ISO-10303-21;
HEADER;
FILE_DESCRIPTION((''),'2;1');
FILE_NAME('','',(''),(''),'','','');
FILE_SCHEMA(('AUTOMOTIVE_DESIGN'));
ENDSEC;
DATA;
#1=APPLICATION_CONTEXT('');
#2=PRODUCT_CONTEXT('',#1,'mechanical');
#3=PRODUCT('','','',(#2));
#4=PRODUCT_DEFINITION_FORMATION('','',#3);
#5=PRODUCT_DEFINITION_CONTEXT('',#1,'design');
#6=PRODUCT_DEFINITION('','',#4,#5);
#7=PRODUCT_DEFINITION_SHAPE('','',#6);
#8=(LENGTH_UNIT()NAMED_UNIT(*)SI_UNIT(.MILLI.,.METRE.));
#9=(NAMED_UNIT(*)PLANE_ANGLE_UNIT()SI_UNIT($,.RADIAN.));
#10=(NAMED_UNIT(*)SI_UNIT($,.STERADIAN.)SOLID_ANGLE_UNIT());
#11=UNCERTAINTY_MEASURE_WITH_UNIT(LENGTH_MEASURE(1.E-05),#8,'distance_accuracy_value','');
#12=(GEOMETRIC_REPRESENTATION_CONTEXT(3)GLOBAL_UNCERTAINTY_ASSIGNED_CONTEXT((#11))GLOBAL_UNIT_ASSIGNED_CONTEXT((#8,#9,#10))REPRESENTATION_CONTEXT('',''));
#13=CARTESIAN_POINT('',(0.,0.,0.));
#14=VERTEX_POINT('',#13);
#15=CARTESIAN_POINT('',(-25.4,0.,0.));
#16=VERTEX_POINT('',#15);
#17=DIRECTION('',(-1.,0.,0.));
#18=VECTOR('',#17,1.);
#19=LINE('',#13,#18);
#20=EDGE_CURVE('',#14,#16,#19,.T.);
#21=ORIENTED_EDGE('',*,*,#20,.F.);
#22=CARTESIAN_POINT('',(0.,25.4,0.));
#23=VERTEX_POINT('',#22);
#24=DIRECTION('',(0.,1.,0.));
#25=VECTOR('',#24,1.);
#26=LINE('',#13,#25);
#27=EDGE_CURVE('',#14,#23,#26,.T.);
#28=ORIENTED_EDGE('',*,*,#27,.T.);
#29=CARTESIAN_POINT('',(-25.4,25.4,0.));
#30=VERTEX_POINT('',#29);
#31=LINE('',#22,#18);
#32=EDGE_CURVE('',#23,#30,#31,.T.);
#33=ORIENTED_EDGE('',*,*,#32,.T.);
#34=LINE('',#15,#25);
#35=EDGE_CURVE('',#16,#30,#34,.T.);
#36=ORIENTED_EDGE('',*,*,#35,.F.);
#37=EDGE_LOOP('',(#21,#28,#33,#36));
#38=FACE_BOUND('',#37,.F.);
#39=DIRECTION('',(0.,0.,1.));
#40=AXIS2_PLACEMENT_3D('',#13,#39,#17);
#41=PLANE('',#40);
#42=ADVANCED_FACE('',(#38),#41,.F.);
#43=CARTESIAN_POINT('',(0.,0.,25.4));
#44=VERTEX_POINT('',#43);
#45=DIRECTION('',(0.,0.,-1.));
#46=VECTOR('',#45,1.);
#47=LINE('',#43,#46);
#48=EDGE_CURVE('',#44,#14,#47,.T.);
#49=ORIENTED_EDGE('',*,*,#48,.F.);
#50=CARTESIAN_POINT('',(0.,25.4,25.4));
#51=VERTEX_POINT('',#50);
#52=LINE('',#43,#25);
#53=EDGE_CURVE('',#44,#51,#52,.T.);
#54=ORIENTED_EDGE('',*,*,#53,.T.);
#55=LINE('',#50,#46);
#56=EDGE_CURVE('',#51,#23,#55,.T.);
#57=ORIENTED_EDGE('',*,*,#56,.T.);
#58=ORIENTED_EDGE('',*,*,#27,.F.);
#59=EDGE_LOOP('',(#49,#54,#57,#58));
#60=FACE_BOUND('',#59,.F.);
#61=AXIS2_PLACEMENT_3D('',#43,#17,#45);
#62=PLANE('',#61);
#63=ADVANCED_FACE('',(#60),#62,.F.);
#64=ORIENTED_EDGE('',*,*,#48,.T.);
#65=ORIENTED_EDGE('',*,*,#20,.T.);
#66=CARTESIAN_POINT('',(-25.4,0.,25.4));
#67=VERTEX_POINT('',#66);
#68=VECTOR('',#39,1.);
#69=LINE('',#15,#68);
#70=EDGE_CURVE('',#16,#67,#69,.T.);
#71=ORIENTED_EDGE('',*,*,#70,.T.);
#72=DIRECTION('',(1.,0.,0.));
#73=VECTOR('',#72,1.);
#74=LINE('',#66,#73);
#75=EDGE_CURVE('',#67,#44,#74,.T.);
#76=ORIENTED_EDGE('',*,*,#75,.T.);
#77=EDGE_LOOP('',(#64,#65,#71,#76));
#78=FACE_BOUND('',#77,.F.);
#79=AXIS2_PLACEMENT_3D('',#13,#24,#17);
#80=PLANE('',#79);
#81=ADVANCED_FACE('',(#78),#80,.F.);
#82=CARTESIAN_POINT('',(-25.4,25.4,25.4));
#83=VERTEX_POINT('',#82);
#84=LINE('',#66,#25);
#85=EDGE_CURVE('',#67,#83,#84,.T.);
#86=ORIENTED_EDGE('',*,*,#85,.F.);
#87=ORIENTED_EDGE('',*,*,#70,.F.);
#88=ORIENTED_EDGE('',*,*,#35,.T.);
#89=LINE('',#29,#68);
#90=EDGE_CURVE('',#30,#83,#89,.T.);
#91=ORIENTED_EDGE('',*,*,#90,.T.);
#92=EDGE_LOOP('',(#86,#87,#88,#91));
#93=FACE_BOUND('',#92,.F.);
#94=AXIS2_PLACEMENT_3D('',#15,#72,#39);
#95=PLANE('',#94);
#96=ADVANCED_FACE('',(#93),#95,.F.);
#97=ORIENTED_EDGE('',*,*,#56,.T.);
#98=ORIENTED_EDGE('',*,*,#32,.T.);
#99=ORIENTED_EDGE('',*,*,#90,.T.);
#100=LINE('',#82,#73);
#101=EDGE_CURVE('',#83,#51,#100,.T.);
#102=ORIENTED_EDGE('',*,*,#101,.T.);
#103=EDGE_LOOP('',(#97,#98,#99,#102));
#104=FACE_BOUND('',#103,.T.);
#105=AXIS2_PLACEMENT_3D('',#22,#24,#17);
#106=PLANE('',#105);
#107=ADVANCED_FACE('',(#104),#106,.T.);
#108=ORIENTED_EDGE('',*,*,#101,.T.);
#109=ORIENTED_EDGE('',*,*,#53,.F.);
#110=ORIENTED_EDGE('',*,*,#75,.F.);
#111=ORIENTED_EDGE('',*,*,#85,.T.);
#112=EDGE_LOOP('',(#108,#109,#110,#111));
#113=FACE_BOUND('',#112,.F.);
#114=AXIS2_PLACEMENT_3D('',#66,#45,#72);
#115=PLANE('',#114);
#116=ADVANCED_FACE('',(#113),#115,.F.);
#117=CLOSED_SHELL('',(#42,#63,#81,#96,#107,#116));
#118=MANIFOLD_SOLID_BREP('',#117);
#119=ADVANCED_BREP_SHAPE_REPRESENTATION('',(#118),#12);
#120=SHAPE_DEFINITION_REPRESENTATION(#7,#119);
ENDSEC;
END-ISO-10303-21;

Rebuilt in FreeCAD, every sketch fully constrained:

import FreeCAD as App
import Part
import Sketcher

V = App.Vector
Q = App.Units.Quantity


def add_polygon(sketch, points):
    """Adds a closed chain of lines whose ends are joined by coincident constraints."""
    first, n = sketch.GeometryCount, len(points)
    for a, b in zip(points, points[1:] + points[:1]):
        sketch.addGeometry(Part.LineSegment(App.Vector(*a, 0), App.Vector(*b, 0)), False)
    for i in range(n):
        sketch.addConstraint(Sketcher.Constraint("Coincident", first + i, 2, first + (i + 1) % n, 1))

doc = App.newDocument("Part")
body = doc.addObject("PartDesign::Body", "Body")

# Sketch on XZ plane
sketch1 = body.newObject("Sketcher::SketchObject", "Sketch")
sketch1.AttachmentSupport = (doc.getObject("XZ_Plane"), [""])
sketch1.MapMode = "FlatFace"
add_polygon(sketch1, [(0, 25), (0, 0), (-25, 0), (-25, 25)])  # lines 0-3
sketch1.addConstraint([
    Sketcher.Constraint("Vertical", 0),
    Sketcher.Constraint("Horizontal", 1),
    Sketcher.Constraint("Vertical", 2),
    Sketcher.Constraint("Horizontal", 3),
    Sketcher.Constraint("Coincident", 0, 2, -1, 1),
    Sketcher.Constraint("Equal", 3, 0),
    Sketcher.Constraint("DistanceX", 1, 2, 1, 1, Q("1 in")),
])
pad1 = body.newObject("PartDesign::Pad", "Pad")
pad1.Profile = sketch1
pad1.Length = Q("1 in")
pad1.Reversed = True

doc.recompute()
